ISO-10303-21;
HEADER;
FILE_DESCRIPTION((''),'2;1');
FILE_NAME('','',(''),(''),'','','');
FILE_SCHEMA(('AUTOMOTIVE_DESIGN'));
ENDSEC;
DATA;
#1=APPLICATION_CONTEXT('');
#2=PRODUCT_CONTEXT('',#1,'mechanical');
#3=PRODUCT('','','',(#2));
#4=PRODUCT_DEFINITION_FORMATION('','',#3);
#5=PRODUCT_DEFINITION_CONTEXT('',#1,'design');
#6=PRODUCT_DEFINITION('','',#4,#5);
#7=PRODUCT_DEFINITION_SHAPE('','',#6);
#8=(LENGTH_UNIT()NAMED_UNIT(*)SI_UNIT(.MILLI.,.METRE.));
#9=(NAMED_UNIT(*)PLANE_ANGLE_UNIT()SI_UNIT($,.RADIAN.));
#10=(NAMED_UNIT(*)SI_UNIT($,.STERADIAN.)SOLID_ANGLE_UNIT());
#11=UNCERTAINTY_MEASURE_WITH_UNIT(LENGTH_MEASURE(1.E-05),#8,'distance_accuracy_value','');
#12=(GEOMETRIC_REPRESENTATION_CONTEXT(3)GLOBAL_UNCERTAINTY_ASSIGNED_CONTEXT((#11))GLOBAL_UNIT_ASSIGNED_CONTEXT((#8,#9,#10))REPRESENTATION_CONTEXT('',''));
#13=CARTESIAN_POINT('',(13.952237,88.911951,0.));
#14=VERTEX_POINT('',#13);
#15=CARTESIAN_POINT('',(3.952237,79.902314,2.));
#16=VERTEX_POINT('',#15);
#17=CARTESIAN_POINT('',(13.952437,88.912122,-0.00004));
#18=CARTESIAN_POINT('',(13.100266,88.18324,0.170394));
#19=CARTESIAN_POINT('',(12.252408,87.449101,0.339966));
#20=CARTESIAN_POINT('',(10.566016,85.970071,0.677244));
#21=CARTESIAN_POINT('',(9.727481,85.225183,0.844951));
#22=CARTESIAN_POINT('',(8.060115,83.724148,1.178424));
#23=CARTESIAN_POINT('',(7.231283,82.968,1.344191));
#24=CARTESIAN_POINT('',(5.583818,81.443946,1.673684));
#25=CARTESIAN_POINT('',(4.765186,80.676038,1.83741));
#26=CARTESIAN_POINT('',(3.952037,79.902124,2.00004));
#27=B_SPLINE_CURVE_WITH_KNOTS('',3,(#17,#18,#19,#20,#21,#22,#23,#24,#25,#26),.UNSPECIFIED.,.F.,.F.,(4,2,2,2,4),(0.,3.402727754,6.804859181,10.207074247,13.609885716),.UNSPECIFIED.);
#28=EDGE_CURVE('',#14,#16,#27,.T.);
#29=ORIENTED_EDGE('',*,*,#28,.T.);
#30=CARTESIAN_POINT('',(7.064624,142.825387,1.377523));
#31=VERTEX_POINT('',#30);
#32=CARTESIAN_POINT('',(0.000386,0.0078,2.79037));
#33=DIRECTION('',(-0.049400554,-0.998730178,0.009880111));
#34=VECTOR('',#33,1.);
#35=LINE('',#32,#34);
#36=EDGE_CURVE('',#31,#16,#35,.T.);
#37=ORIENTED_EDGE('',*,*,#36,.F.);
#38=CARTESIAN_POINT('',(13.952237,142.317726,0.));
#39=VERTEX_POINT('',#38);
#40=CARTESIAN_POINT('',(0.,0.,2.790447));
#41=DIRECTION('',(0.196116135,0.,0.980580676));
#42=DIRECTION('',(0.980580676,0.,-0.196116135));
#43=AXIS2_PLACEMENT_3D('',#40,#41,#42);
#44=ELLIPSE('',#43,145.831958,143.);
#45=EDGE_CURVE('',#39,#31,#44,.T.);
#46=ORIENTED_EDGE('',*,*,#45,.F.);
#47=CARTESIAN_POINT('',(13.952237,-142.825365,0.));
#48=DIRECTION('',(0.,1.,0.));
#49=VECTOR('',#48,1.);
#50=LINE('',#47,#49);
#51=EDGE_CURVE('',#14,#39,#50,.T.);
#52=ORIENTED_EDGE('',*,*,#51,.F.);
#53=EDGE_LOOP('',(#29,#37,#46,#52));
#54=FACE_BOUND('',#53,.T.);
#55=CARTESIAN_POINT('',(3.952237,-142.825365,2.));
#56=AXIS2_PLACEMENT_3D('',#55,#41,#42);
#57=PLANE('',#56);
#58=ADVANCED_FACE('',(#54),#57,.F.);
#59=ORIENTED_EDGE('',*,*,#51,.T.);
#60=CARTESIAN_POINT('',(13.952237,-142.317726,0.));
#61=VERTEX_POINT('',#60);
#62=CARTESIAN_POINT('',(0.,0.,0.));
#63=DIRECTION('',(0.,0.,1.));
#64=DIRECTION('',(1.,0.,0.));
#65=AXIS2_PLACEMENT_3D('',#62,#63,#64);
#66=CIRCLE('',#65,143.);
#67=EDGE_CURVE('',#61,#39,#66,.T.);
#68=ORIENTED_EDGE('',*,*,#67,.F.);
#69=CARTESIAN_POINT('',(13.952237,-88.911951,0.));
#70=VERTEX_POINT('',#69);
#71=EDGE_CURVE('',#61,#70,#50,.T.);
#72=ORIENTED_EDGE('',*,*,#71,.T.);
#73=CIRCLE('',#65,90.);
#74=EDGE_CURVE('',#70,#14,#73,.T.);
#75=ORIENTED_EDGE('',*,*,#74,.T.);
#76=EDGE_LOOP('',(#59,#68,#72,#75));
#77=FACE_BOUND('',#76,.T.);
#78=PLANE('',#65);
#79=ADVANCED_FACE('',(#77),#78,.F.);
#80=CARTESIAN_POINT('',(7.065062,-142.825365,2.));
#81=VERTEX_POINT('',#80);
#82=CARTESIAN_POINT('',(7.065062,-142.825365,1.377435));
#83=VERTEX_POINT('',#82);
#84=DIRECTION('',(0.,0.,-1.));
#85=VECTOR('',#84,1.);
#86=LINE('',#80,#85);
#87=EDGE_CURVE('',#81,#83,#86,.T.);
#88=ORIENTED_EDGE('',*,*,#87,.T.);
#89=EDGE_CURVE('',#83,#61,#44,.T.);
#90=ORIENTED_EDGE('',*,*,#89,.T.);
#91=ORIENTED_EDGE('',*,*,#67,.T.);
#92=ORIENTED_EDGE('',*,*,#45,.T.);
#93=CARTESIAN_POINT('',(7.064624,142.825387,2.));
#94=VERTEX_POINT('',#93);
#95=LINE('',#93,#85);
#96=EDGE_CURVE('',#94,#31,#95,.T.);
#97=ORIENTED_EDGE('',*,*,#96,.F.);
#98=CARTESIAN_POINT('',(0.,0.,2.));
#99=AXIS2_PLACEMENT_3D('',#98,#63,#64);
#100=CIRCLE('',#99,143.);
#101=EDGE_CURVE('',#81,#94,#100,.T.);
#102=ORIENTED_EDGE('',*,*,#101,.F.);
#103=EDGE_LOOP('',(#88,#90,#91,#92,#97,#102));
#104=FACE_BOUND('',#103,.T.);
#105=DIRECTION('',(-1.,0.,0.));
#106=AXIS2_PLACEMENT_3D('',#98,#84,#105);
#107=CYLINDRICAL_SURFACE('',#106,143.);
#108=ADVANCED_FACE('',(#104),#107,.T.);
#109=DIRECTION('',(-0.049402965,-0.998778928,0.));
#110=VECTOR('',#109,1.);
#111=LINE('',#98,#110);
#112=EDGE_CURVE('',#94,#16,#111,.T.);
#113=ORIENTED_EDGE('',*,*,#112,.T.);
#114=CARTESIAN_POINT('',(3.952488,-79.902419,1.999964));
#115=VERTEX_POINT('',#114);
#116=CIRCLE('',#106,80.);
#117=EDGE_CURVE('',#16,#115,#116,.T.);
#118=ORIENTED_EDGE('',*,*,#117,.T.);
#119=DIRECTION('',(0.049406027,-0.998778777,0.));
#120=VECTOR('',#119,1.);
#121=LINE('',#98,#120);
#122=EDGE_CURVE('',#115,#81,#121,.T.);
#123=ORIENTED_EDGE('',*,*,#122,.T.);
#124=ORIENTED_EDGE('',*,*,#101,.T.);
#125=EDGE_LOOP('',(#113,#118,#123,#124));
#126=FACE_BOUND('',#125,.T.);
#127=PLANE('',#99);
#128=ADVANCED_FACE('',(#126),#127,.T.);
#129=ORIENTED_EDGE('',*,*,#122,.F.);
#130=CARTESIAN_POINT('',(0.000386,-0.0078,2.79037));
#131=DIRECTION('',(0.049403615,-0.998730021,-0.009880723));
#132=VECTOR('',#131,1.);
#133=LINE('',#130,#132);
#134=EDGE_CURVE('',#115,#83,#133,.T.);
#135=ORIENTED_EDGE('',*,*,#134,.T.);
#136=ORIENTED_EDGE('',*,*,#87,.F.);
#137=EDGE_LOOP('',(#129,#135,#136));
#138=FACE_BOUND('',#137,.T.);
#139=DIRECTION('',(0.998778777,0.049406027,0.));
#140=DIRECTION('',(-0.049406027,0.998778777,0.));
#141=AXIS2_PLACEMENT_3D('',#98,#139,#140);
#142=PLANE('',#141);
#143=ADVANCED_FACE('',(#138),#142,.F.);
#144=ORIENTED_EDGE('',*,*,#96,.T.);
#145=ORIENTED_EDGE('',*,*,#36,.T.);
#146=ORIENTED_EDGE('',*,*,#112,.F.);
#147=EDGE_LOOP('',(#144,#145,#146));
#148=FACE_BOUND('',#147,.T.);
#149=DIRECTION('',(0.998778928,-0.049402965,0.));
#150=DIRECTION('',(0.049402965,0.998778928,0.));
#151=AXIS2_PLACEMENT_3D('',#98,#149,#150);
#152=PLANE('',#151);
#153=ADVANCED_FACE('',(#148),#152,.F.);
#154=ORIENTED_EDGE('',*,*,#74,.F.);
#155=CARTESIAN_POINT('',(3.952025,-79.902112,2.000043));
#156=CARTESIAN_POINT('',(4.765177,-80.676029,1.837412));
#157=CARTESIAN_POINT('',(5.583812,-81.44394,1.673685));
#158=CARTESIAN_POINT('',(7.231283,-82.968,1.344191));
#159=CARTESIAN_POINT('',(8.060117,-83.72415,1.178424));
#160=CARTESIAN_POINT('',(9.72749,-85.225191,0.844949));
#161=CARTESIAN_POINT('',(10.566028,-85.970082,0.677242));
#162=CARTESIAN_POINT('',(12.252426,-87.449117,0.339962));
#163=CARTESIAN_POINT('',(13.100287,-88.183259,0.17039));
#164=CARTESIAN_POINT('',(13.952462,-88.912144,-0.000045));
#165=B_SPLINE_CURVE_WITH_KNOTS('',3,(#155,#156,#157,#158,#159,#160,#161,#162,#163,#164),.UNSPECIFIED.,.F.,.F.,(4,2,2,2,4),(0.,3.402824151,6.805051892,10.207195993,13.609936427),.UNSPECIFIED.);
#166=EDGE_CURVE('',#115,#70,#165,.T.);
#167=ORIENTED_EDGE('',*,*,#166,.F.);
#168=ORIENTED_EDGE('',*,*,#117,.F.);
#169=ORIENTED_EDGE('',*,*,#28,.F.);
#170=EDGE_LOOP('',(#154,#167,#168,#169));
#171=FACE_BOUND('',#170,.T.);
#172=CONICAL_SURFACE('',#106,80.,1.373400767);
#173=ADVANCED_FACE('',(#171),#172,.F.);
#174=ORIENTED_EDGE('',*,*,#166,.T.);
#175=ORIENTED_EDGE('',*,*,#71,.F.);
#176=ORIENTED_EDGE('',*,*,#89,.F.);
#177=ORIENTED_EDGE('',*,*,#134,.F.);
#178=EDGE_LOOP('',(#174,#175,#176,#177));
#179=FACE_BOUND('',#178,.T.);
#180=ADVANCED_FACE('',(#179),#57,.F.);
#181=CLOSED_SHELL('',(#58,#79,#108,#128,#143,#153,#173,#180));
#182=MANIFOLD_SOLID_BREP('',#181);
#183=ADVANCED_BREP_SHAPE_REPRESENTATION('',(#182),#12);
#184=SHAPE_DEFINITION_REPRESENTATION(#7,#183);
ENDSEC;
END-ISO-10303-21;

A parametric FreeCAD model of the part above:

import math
import FreeCAD as App
import Part
import Sketcher
from FreeCAD import Vector
Q = App.Units.Quantity

doc = App.newDocument("Part")
body = doc.addObject("PartDesign::Body", "Body")

# Sketch on XY plane
sketch1 = body.newObject("Sketcher::SketchObject", "Sketch")
sketch1.AttachmentSupport = (doc.getObject("XY_Plane"), [""])
sketch1.MapMode = "FlatFace"
sketch1.addGeometry([
    Part.LineSegment(Vector(7.064624, 142.825387, 0), Vector(0, 0, 0)),
    Part.LineSegment(Vector(0, 0, 0), Vector(7.065062, -142.825365, 0)),
    Part.ArcOfCircle(Part.Circle(Vector(0, 0, 0), Vector(0, 0, 1), 143), math.radians(-87.16809), math.radians(87.168266)),
], False)
sketch1.addConstraint([
    Sketcher.Constraint("Coincident", 0, 2, 1, 1),
    Sketcher.Constraint("Coincident", 1, 2, 2, 1),
    Sketcher.Constraint("Coincident", 2, 2, 0, 1),
    Sketcher.Constraint("Coincident", 2, 3, -1, 1),
    Sketcher.Constraint("Coincident", 0, 2, -1, 1),
    Sketcher.Constraint("Radius", 2, Q("143 mm")),
    Sketcher.Constraint("DistanceX", -1, 1, 1, 2, Q("7.065062 mm")),
    Sketcher.Constraint("DistanceY", 1, 2, 2, 2, Q("285.650752 mm")),
])
pad1 = body.newObject("PartDesign::Pad", "Pad")
pad1.Profile = sketch1
pad1.Length = 2

# Sketch on XY plane
sketch2 = body.newObject("Sketcher::SketchObject", "Sketch001")
sketch2.AttachmentSupport = (doc.getObject("XY_Plane"), [""])
sketch2.MapMode = "FlatFace"
sketch2.addGeometry(Part.Circle(Vector(0, 0, 0), Vector(0, 0, 1), 80), False)
sketch2.addConstraint([
    Sketcher.Constraint("Coincident", 0, 3, -1, 1),
    Sketcher.Constraint("Diameter", 0, Q("160 mm")),
])
pocket1 = body.newObject("PartDesign::Pocket", "Pocket")
pocket1.Profile = sketch2
pocket1.Type = "ThroughAll"
pocket1.Midplane = True

# Sketch on XZ plane
sketch3 = body.newObject("Sketcher::SketchObject", "Sketch002")
sketch3.AttachmentSupport = (doc.getObject("XZ_Plane"), [""])
sketch3.MapMode = "FlatFace"
sketch3.addGeometry([
    Part.LineSegment(Vector(3.952237, 2, 0), Vector(13.952237, 0, 0)),
    Part.LineSegment(Vector(13.952237, 0, 0), Vector(3.952237, 0, 0)),
    Part.LineSegment(Vector(3.952237, 0, 0), Vector(3.952237, 2, 0)),
], False)
sketch3.addConstraint([
    Sketcher.Constraint("Coincident", 0, 2, 1, 1),
    Sketcher.Constraint("Coincident", 1, 2, 2, 1),
    Sketcher.Constraint("Coincident", 2, 2, 0, 1),
    Sketcher.Constraint("Horizontal", 1),
    Sketcher.Constraint("Vertical", 2),
    Sketcher.Constraint("PointOnObject", 0, 2, -1),
    Sketcher.Constraint("DistanceX", 1, 2, 1, 1, Q("10 mm")),
    Sketcher.Constraint("DistanceY", 2, 1, 2, 2, Q("2 mm")),
    Sketcher.Constraint("DistanceX", -1, 1, 0, 2, Q("13.952237 mm")),
])
pocket2 = body.newObject("PartDesign::Pocket", "Pocket001")
pocket2.Profile = sketch3
pocket2.Type = "ThroughAll"
pocket2.Midplane = True

# Sketch on XZ plane
sketch4 = body.newObject("Sketcher::SketchObject", "Sketch003")
sketch4.AttachmentSupport = (doc.getObject("XZ_Plane"), [""])
sketch4.MapMode = "FlatFace"
sketch4.addGeometry([
    Part.LineSegment(Vector(80, 2, 0), Vector(90, 0, 0)),
    Part.LineSegment(Vector(90, 0, 0), Vector(80, 0, 0)),
    Part.LineSegment(Vector(80, 0, 0), Vector(80, 2, 0)),
], False)
sketch4.addConstraint([
    Sketcher.Constraint("Coincident", 0, 2, 1, 1),
    Sketcher.Constraint("Coincident", 1, 2, 2, 1),
    Sketcher.Constraint("Coincident", 2, 2, 0, 1),
    Sketcher.Constraint("Horizontal", 1),
    Sketcher.Constraint("Vertical", 2),
    Sketcher.Constraint("PointOnObject", 0, 2, -1),
    Sketcher.Constraint("DistanceX", 1, 2, 1, 1, Q("10 mm")),
    Sketcher.Constraint("DistanceY", 2, 1, 2, 2, Q("2 mm")),
    Sketcher.Constraint("DistanceX", -1, 1, 0, 2, Q("90 mm")),
])
groove = body.newObject("PartDesign::Groove", "Groove")
groove.Profile = sketch4
groove.ReferenceAxis = (sketch4, ["V_Axis"])
groove.Angle = 360

doc.recompute()
